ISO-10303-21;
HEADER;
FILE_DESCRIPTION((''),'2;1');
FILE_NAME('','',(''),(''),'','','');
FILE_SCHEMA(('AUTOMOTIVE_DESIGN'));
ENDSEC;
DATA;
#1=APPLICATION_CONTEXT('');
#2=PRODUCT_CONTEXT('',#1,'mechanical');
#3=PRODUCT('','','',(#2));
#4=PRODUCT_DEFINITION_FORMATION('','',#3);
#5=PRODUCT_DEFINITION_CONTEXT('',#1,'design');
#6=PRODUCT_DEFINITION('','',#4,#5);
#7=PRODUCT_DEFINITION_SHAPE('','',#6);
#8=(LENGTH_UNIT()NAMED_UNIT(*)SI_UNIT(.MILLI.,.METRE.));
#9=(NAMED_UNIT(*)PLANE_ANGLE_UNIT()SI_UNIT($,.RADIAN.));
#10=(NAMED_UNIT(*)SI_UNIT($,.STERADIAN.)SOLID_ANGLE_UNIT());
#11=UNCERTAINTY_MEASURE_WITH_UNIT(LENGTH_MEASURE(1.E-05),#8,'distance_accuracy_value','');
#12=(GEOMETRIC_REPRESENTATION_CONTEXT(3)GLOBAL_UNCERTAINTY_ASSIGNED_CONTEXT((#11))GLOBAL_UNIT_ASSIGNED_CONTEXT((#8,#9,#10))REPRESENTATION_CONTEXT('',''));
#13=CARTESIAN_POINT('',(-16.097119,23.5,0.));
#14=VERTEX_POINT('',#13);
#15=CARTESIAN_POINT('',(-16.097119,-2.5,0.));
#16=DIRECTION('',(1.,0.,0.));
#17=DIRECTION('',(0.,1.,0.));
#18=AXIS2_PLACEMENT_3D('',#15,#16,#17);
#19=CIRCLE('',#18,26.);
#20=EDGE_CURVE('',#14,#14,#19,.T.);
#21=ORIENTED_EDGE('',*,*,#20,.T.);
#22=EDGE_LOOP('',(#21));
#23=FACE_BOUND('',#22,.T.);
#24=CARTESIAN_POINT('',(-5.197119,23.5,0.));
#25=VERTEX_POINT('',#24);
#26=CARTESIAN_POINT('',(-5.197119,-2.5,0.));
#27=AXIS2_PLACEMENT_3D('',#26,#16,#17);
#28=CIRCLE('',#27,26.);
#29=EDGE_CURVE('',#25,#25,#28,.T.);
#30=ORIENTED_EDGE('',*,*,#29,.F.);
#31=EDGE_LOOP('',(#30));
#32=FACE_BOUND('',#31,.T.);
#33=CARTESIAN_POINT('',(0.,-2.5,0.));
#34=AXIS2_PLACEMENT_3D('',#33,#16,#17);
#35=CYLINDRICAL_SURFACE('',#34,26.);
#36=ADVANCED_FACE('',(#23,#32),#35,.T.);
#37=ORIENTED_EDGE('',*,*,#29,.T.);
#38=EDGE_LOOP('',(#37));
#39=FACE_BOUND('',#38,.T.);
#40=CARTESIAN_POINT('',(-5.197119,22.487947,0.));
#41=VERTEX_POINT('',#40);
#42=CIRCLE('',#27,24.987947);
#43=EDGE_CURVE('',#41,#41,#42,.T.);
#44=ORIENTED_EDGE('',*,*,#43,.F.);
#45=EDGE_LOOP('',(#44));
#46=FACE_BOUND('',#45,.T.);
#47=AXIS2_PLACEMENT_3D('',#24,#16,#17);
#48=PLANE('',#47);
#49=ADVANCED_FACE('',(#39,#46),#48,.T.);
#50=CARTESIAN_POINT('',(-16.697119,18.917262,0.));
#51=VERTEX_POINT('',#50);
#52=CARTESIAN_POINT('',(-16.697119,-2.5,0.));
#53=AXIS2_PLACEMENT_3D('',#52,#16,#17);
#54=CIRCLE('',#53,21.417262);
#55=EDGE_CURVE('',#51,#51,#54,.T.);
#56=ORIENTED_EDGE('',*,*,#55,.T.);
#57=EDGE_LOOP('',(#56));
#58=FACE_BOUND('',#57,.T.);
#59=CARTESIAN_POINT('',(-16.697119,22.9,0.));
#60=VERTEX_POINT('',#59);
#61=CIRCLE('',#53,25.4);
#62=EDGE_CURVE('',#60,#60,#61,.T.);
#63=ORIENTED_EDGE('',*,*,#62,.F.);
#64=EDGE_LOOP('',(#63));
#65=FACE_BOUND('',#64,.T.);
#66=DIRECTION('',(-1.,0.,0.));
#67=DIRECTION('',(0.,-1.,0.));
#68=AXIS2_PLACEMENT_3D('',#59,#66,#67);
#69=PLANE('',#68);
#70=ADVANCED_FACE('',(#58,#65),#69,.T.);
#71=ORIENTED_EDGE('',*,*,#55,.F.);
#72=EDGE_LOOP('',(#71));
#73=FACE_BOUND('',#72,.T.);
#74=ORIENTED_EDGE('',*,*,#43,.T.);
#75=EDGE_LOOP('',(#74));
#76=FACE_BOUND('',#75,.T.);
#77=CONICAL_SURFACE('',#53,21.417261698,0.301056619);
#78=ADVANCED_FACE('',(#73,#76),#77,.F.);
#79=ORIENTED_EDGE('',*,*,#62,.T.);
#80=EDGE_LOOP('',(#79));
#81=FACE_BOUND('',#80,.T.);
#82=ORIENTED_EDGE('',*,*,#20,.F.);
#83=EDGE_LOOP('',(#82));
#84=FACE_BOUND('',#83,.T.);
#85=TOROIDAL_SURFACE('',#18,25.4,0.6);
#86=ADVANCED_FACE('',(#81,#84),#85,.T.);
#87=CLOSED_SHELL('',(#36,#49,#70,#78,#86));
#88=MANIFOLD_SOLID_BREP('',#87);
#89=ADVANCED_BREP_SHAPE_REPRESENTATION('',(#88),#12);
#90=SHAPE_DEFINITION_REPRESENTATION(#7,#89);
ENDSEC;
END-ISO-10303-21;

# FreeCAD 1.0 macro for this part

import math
import FreeCAD as App
import Part
import Sketcher

V = App.Vector

doc = App.newDocument("Part")
body = doc.addObject("PartDesign::Body", "Body")

# Sketch on XY plane
sketch1 = doc.addObject("Sketcher::SketchObject", "Sketch")
body.addObject(sketch1)
sketch1.AttachmentSupport = (doc.XY_Plane, [""])
sketch1.MapMode = "FlatFace"
sketch1.addGeometry([
    Part.LineSegment(V(-16.697119, 22.9, 0), V(-16.697119, 18.917262, 0)),  # 0
    Part.LineSegment(V(-16.697119, 18.917262, 0), V(-5.197119, 22.487947, 0)),  # 1
    Part.LineSegment(V(-5.197119, 22.487947, 0), V(-5.197119, 23.5, 0)),  # 2
    Part.LineSegment(V(-5.197119, 23.5, 0), V(-16.097119, 23.5, 0)),  # 3
    Part.ArcOfCircle(Part.Circle(V(-16.097119, 22.9, 0), V(0, 0, 1), 0.6), math.radians(90), math.radians(180)),  # 4
], False)
sketch1.addGeometry(Part.LineSegment(V(-5.197119, -2.5, 0), V(-16.697119, -2.5, 0)), True)  # axis
sketch1.addConstraint([
    Sketcher.Constraint("Coincident", 0, 2, 1, 1),
    Sketcher.Constraint("Coincident", 1, 2, 2, 1),
    Sketcher.Constraint("Coincident", 2, 2, 3, 1),
    Sketcher.Constraint("Tangent", 3, 2, 4, 1),
    Sketcher.Constraint("Tangent", 4, 2, 0, 1),
    Sketcher.Constraint("Vertical", 0),
    Sketcher.Constraint("Vertical", 2),
    Sketcher.Constraint("Horizontal", 3),
    Sketcher.Constraint("Horizontal", 5),
    Sketcher.Constraint("Vertical", 2, 2, 5, 1),
    Sketcher.Constraint("Vertical", 4, 2, 5, 2),
    Sketcher.Constraint("Radius", 4, 0.6),
    Sketcher.Constraint("DistanceX", 3, 2, 3, 1, 10.9),
    Sketcher.Constraint("DistanceY", 5, 1, 2, 2, 26.0),
    Sketcher.Constraint("DistanceY", -1, 1, 4, 3, 22.9),
    Sketcher.Constraint("DistanceY", 0, 2, 0, 1, 3.982738),
    Sketcher.Constraint("DistanceY", 2, 1, 2, 2, 1.012053),
    Sketcher.Constraint("DistanceX", 4, 3, -1, 1, 16.097119),
])
revolution = doc.addObject("PartDesign::Revolution", "Revolution")
body.addObject(revolution)
revolution.Profile = sketch1
revolution.ReferenceAxis = (sketch1, ["Axis0"])
revolution.Angle = 360

doc.recompute()
